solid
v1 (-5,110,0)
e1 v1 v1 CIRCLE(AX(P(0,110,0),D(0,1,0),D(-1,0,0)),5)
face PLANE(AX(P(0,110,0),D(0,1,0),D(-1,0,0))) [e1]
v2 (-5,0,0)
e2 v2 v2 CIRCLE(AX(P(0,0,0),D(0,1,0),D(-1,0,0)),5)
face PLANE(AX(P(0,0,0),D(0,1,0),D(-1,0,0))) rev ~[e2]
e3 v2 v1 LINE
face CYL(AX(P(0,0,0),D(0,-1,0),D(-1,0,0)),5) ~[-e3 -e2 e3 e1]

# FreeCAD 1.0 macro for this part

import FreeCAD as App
import Part
import Sketcher

V = App.Vector
Q = App.Units.Quantity

doc = App.newDocument("Part")
params = doc.addObject("Spreadsheet::Sheet", "Params")
for row, (alias, value) in enumerate([
    ("sketch1_diameter", "10 mm"),
    ("pad1_length", "110 mm"),
], start=1):
    params.set(f"A{row}", alias)
    params.set(f"B{row}", "=" + value)
    params.setAlias(f"B{row}", alias)

body = doc.addObject("PartDesign::Body", "Body")

# Sketch on XZ plane
sketch1 = body.newObject("Sketcher::SketchObject", "Sketch")
sketch1.AttachmentSupport = (doc.getObject("XZ_Plane"), [""])
sketch1.MapMode = "FlatFace"
sketch1.addGeometry(Part.Circle(V(0, 0, 0), V(0, 0, 1), 5), False)
sketch1.addConstraint([
    Sketcher.Constraint("Coincident", 0, 3, -1, 1),
    Sketcher.Constraint("Diameter", 0, Q("10 mm")),
])
sketch1.setExpression("Constraints[1]", "Params.sketch1_diameter")
pad1 = body.newObject("PartDesign::Pad", "Pad")
pad1.Profile = sketch1
pad1.setExpression("Length", "Params.pad1_length")
pad1.Reversed = True

doc.recompute()
